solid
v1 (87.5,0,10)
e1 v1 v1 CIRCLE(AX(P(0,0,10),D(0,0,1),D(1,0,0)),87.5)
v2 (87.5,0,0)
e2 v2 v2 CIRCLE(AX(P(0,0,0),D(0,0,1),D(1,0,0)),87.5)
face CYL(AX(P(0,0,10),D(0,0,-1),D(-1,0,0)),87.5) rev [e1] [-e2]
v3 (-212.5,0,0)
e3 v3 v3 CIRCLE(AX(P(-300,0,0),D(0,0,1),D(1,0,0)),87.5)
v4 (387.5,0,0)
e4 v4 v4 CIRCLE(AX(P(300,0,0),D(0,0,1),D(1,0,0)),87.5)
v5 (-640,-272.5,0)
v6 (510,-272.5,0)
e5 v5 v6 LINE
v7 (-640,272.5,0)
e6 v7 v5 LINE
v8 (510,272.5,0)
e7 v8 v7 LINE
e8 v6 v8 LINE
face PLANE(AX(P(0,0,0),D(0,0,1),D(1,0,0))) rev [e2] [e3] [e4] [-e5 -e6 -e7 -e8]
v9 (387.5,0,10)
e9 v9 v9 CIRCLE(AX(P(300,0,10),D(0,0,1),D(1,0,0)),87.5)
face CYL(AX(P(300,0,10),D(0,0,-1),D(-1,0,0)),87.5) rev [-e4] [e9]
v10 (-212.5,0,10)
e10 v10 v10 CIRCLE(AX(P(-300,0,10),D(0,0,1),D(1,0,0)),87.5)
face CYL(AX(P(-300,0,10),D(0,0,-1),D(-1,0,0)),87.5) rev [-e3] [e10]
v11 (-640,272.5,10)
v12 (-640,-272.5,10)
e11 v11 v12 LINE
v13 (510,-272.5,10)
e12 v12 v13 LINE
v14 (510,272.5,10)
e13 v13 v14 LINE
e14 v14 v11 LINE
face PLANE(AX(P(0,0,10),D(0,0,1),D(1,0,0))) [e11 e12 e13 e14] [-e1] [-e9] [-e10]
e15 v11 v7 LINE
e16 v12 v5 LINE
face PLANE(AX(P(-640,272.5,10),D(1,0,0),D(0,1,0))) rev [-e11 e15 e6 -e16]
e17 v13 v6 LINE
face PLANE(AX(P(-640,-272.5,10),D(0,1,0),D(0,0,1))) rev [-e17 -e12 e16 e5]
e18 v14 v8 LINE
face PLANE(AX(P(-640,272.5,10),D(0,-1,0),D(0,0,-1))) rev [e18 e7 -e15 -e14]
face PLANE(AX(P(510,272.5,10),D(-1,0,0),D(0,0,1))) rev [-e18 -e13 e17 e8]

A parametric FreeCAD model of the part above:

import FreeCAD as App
import Part
import Sketcher

V = App.Vector
Q = App.Units.Quantity


def add_polygon(sketch, points):
    """Adds a closed chain of lines whose ends are joined by coincident constraints."""
    first, n = sketch.GeometryCount, len(points)
    for a, b in zip(points, points[1:] + points[:1]):
        sketch.addGeometry(Part.LineSegment(App.Vector(*a, 0), App.Vector(*b, 0)), False)
    for i in range(n):
        sketch.addConstraint(Sketcher.Constraint("Coincident", first + i, 2, first + (i + 1) % n, 1))

doc = App.newDocument("Part")
body = doc.addObject("PartDesign::Body", "Body")

# Sketch on XY plane
sketch1 = body.newObject("Sketcher::SketchObject", "Sketch")
sketch1.AttachmentSupport = (doc.getObject("XY_Plane"), [""])
sketch1.MapMode = "FlatFace"
add_polygon(sketch1, [(-640, 272), (-640, -272), (510, -272), (510, 272)])  # lines 0-3
sketch1.addGeometry(Part.Circle(V(-300, 0, 0), V(0, 0, 1), 88), False)  # 4
sketch1.addGeometry(Part.Circle(V(0, 0, 0), V(0, 0, 1), 88), False)  # 5
sketch1.addGeometry(Part.Circle(V(300, 0, 0), V(0, 0, 1), 88), False)  # 6
sketch1.addConstraint(Sketcher.Constraint("Vertical", 0))
sketch1.addConstraint(Sketcher.Constraint("Horizontal", 1))
sketch1.addConstraint(Sketcher.Constraint("Vertical", 2))
sketch1.addConstraint(Sketcher.Constraint("Horizontal", 3))
sketch1.addConstraint(Sketcher.Constraint("Coincident", 5, 3, -1, 1))
sketch1.addConstraint(Sketcher.Constraint("Equal", 4, 5))
sketch1.addConstraint(Sketcher.Constraint("Equal", 5, 6))
sketch1.addConstraint(Sketcher.Constraint("Symmetric", 4, 3, 6, 3, -1, 1))
sketch1.addConstraint(Sketcher.Constraint("PointOnObject", 4, 3, -1))
sketch1.addConstraint(Sketcher.Constraint("Diameter", 4, Q("175 mm")))
sketch1.addConstraint(Sketcher.Constraint("DistanceX", 1, 1, 1, 2, Q("1150 mm")))
sketch1.addConstraint(Sketcher.Constraint("DistanceY", 0, 2, 0, 1, Q("545 mm")))
sketch1.addConstraint(Sketcher.Constraint("DistanceX", 4, 3, -1, 1, Q("300 mm")))
sketch1.addConstraint(Sketcher.Constraint("DistanceX", 0, 2, -1, 1, Q("640 mm")))
sketch1.addConstraint(Sketcher.Constraint("DistanceY", 0, 2, -1, 1, Q("272.5 mm")))
pad1 = body.newObject("PartDesign::Pad", "Pad")
pad1.Profile = sketch1
pad1.Length = 10

doc.recompute()
